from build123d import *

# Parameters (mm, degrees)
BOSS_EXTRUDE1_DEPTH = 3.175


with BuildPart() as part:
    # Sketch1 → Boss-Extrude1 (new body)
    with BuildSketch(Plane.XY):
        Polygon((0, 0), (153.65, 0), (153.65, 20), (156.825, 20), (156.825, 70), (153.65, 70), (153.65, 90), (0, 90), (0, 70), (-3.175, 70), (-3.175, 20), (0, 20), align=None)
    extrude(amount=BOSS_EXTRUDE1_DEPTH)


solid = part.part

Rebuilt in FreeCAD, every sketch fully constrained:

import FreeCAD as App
import Part
import Sketcher

V = App.Vector


def add_polygon(sketch, points):
    """Adds a closed chain of lines whose ends are joined by coincident constraints."""
    first, n = sketch.GeometryCount, len(points)
    for a, b in zip(points, points[1:] + points[:1]):
        sketch.addGeometry(Part.LineSegment(App.Vector(*a, 0), App.Vector(*b, 0)), False)
    for i in range(n):
        sketch.addConstraint(Sketcher.Constraint("Coincident", first + i, 2, first + (i + 1) % n, 1))

doc = App.newDocument("Part")
params = doc.addObject("Spreadsheet::Sheet", "Params")
for row, (alias, value) in enumerate([
    ("sketch1_height", "20 mm"),
    ("sketch1_height2", "50 mm"),
    ("sketch1_width", "153.65 mm"),
    ("pad1_length", "3.175 mm"),
], start=1):
    params.set(f"A{row}", alias)
    params.set(f"B{row}", "=" + value)
    params.setAlias(f"B{row}", alias)

body = doc.addObject("PartDesign::Body", "Body")

sketch1 = doc.addObject("Sketcher::SketchObject", "Sketch")
body.addObject(sketch1)
sketch1.AttachmentSupport = (doc.XY_Plane, [""])
sketch1.MapMode = "FlatFace"
add_polygon(sketch1, [(0, 0), (153.7, 0), (153.7, 20), (156.8, 20), (156.8, 70), (153.7, 70), (153.7, 90), (0, 90), (0, 70), (-3.2, 70), (-3.2, 20), (0, 20)])
sketch1.addConstraint(Sketcher.Constraint("Horizontal", 0))
sketch1.addConstraint(Sketcher.Constraint("Vertical", 1))
sketch1.addConstraint(Sketcher.Constraint("Horizontal", 2))
sketch1.addConstraint(Sketcher.Constraint("Vertical", 3))
sketch1.addConstraint(Sketcher.Constraint("Horizontal", 4))
sketch1.addConstraint(Sketcher.Constraint("Vertical", 5))
sketch1.addConstraint(Sketcher.Constraint("Horizontal", 6))
sketch1.addConstraint(Sketcher.Constraint("Vertical", 7))
sketch1.addConstraint(Sketcher.Constraint("Horizontal", 8))
sketch1.addConstraint(Sketcher.Constraint("Vertical", 9))
sketch1.addConstraint(Sketcher.Constraint("Horizontal", 10))
sketch1.addConstraint(Sketcher.Constraint("Vertical", 11))
sketch1.addConstraint(Sketcher.Constraint("Coincident", 11, 2, -1, 1))
sketch1.addConstraint(Sketcher.Constraint("PointOnObject", 6, 2, -2))
sketch1.addConstraint(Sketcher.Constraint("Horizontal", 4, 2, 7, 2))
sketch1.addConstraint(Sketcher.Constraint("Horizontal", 2, 2, 9, 2))
sketch1.addConstraint(Sketcher.Constraint("Vertical", 1, 2, 4, 2))
sketch1.addConstraint(Sketcher.Constraint("Equal", 4, 8))
sketch1.addConstraint(Sketcher.Constraint("Equal", 1, 5))
sketch1.addConstraint(Sketcher.Constraint("DistanceY", 1, 1, 1, 2, 20.0))
sketch1.addConstraint(Sketcher.Constraint("DistanceY", 3, 1, 3, 2, 50.0))
sketch1.addConstraint(Sketcher.Constraint("DistanceX", 8, 2, 3, 2, 160.0))
sketch1.addConstraint(Sketcher.Constraint("DistanceX", 0, 1, 0, 2, 153.65))
sketch1.setExpression("Constraints[31]", "Params.sketch1_height")
sketch1.setExpression("Constraints[32]", "Params.sketch1_height2")
sketch1.setExpression("Constraints[34]", "Params.sketch1_width")
pad1 = doc.addObject("PartDesign::Pad", "Pad")
body.addObject(pad1)
pad1.Profile = sketch1
pad1.setExpression("Length", "Params.pad1_length")

doc.recompute()
